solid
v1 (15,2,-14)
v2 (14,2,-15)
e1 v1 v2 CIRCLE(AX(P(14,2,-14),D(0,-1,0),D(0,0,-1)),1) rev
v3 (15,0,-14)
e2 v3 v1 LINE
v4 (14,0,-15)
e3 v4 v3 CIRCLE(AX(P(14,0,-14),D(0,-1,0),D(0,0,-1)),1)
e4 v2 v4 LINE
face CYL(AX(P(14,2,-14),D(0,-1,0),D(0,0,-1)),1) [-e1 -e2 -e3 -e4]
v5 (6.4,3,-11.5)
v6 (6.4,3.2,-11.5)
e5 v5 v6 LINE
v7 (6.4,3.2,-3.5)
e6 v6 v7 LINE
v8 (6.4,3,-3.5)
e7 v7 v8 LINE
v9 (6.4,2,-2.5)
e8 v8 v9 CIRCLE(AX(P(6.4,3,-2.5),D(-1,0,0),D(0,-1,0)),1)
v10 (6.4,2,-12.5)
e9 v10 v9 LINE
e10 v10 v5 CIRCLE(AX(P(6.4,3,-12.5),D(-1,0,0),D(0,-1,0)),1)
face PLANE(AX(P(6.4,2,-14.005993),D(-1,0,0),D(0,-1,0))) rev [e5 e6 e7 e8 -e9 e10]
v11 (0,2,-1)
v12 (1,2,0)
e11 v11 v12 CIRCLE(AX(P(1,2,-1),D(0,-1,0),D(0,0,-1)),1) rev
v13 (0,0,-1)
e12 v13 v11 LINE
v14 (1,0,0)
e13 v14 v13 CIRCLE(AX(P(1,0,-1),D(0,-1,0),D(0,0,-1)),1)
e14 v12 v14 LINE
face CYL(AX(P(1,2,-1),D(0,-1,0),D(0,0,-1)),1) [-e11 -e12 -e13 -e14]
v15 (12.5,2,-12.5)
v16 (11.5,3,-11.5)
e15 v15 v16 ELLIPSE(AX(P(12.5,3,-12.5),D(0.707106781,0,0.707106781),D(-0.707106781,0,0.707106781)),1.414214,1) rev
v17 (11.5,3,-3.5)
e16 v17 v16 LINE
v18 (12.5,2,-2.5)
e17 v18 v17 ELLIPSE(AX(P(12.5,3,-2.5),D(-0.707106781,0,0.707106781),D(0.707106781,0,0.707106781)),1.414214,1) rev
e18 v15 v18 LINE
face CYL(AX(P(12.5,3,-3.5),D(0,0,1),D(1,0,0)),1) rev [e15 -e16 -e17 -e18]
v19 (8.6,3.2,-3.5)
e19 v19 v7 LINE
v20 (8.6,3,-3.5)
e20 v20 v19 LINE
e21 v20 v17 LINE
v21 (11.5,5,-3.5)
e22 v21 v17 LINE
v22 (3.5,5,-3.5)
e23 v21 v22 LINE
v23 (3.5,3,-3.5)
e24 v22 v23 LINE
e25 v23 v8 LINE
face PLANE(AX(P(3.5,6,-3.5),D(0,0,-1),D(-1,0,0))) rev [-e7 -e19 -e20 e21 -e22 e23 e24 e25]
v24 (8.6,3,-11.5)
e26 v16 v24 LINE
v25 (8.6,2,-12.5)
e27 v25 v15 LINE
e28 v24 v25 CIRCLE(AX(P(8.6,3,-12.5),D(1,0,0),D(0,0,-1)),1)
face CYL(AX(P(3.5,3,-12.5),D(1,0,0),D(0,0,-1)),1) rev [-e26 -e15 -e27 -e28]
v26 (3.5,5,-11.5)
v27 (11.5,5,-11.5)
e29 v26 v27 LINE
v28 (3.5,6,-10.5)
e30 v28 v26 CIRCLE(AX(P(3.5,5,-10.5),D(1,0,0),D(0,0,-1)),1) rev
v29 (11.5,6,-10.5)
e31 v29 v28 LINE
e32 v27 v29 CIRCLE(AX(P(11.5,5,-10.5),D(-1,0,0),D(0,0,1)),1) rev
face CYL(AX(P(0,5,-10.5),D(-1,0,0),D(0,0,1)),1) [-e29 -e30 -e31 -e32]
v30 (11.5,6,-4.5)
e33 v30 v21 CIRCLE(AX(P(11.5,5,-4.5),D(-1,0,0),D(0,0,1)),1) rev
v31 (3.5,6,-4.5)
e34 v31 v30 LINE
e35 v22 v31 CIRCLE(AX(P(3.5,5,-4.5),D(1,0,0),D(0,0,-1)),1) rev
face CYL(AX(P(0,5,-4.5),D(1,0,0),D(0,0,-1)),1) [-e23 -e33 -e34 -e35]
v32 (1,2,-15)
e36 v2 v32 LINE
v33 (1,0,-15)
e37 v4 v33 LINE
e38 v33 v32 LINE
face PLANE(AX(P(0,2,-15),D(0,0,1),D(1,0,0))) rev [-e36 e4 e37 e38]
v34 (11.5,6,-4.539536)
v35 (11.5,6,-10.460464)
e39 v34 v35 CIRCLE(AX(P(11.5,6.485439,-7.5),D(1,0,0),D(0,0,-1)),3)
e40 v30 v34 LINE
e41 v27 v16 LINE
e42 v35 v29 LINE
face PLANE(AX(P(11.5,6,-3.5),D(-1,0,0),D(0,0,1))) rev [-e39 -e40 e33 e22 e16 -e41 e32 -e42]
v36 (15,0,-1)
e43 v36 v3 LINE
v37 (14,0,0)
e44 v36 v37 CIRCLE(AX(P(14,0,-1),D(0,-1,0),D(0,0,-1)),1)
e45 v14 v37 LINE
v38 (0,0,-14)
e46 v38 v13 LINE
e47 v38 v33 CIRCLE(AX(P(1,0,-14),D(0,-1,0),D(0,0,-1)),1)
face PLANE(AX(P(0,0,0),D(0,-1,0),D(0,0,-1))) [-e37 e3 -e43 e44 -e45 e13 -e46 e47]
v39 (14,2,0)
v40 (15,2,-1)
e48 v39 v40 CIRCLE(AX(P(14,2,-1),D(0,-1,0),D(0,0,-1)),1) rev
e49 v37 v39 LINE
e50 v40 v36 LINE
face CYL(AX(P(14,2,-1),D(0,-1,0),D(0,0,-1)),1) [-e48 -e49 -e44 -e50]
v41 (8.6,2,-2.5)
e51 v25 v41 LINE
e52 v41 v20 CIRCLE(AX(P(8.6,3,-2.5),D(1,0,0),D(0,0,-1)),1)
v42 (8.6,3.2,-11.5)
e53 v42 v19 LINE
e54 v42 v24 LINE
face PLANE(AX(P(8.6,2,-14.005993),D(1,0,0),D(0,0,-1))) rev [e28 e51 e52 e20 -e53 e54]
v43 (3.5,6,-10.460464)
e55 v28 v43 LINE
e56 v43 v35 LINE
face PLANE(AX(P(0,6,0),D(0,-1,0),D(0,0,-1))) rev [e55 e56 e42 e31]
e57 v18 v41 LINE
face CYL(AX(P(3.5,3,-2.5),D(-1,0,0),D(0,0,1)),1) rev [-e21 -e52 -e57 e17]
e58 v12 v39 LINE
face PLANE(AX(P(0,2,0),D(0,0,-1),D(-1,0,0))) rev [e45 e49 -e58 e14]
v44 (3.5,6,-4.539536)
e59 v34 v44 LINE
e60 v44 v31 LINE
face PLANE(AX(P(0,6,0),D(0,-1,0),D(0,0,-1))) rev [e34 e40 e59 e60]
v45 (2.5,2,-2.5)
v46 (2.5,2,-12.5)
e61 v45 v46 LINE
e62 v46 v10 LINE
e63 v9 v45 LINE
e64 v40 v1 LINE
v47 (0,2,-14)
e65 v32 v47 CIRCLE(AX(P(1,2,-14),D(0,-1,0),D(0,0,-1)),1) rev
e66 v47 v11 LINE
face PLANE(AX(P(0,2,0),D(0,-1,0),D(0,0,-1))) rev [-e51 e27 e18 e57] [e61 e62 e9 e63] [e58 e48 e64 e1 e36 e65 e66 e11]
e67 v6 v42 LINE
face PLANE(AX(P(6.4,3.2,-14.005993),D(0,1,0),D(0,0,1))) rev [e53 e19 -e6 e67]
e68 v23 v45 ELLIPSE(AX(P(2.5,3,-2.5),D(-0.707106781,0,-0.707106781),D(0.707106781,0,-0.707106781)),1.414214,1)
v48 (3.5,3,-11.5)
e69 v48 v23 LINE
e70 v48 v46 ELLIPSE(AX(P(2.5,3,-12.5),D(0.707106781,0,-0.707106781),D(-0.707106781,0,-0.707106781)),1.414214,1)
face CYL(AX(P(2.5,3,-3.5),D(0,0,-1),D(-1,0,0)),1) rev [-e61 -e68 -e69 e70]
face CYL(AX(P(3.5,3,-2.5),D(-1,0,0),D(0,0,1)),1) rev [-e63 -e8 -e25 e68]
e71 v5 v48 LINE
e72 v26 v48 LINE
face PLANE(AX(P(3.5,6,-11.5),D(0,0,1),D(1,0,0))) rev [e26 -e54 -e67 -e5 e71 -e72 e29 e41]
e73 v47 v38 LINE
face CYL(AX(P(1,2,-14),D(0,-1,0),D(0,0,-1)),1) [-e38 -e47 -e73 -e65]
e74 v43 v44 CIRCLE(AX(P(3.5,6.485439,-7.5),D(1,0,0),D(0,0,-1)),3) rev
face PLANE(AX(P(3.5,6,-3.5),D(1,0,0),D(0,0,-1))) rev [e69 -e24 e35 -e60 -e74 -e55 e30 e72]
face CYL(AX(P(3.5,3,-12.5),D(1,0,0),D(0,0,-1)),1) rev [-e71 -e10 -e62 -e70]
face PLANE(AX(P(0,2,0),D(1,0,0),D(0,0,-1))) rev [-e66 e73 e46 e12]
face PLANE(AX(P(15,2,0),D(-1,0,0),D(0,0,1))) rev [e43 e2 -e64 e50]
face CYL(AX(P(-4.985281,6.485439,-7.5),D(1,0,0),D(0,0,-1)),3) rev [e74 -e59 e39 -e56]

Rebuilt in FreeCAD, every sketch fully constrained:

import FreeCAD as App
import Part
import Sketcher

V = App.Vector


def edges_at(feature, points):
    """Names of the edges that pass closest to the given points."""
    edges = feature.Shape.Edges
    near = lambda p: min(range(len(edges)), key=lambda i: edges[i].distToShape(Part.Vertex(*p))[0])
    return sorted({f"Edge{near(p) + 1}" for p in points})


def add_polygon(sketch, points):
    """Adds a closed chain of lines whose ends are joined by coincident constraints."""
    first, n = sketch.GeometryCount, len(points)
    for a, b in zip(points, points[1:] + points[:1]):
        sketch.addGeometry(Part.LineSegment(App.Vector(*a, 0), App.Vector(*b, 0)), False)
    for i in range(n):
        sketch.addConstraint(Sketcher.Constraint("Coincident", first + i, 2, first + (i + 1) % n, 1))

doc = App.newDocument("Part")
params = doc.addObject("Spreadsheet::Sheet", "Params")
for row, (alias, value) in enumerate([
    ("sketch1_width", "15 mm"),
    ("pad1_length", "2 mm"),
    ("sketch2_width", "8 mm"),
    ("pad2_length", "4 mm"),
    ("sketch3_diameter", "6 mm"),
    ("pocket1_length", "8 mm"),
    ("sketch4_width", "2.2 mm"),
    ("sketch4_height", "1.2 mm"),
    ("pocket2_length", "8 mm"),
    ("fillet_radius", "1 mm"),
], start=1):
    params.set(f"A{row}", alias)
    params.set(f"B{row}", "=" + value)
    params.setAlias(f"B{row}", alias)

body = doc.addObject("PartDesign::Body", "Body")

sketch1 = body.newObject("Sketcher::SketchObject", "Sketch")
sketch1.AttachmentSupport = (doc.getObject("XZ_Plane"), [""])
sketch1.MapMode = "FlatFace"
add_polygon(sketch1, [(0, -15), (0, 0), (15, 0), (15, -15)])
sketch1.addConstraint(Sketcher.Constraint("Vertical", 0))
sketch1.addConstraint(Sketcher.Constraint("Horizontal", 1))
sketch1.addConstraint(Sketcher.Constraint("Vertical", 2))
sketch1.addConstraint(Sketcher.Constraint("Horizontal", 3))
sketch1.addConstraint(Sketcher.Constraint("Coincident", 0, 2, -1, 1))
sketch1.addConstraint(Sketcher.Constraint("Equal", 3, 0))
sketch1.addConstraint(Sketcher.Constraint("DistanceX", 1, 1, 1, 2, 15.0))
sketch1.setExpression("Constraints[10]", "Params.sketch1_width")
pad1 = body.newObject("PartDesign::Pad", "Pad")
pad1.Profile = sketch1
pad1.setExpression("Length", "Params.pad1_length")
pad1.Reversed = True

sketch2 = body.newObject("Sketcher::SketchObject", "Sketch001")
sketch2.AttachmentSupport = (doc.getObject("XZ_Plane"), [""])
sketch2.MapMode = "FlatFace"
sketch2.AttachmentOffset = App.Placement(V(0, 0, -2), App.Rotation())
add_polygon(sketch2, [(4, -12), (4, -4), (12, -4), (12, -12)])
sketch2.addConstraint(Sketcher.Constraint("Vertical", 0))
sketch2.addConstraint(Sketcher.Constraint("Horizontal", 1))
sketch2.addConstraint(Sketcher.Constraint("Vertical", 2))
sketch2.addConstraint(Sketcher.Constraint("Horizontal", 3))
sketch2.addConstraint(Sketcher.Constraint("Equal", 3, 0))
sketch2.addConstraint(Sketcher.Constraint("DistanceX", 1, 1, 1, 2, 8.0))
sketch2.addConstraint(Sketcher.Constraint("DistanceX", -1, 1, 0, 2, 3.5))
sketch2.addConstraint(Sketcher.Constraint("DistanceY", 0, 2, -1, 1, 3.5))
sketch2.setExpression("Constraints[9]", "Params.sketch2_width")
pad2 = body.newObject("PartDesign::Pad", "Pad001")
pad2.Profile = sketch2
pad2.setExpression("Length", "Params.pad2_length")
pad2.Reversed = True

sketch3 = body.newObject("Sketcher::SketchObject", "Sketch002")
sketch3.AttachmentSupport = (doc.getObject("YZ_Plane"), [""])
sketch3.MapMode = "FlatFace"
sketch3.AttachmentOffset = App.Placement(V(0, 0, 11.5), App.Rotation())
sketch3.addGeometry(Part.Circle(V(6.5, -7.5, 0), V(0, 0, 1), 3), False)
sketch3.addConstraint(Sketcher.Constraint("Diameter", 0, 6.0))
sketch3.addConstraint(Sketcher.Constraint("DistanceY", 0, 3, -1, 1, 7.5))
sketch3.addConstraint(Sketcher.Constraint("DistanceX", -1, 1, 0, 3, 6.485439))
sketch3.setExpression("Constraints[0]", "Params.sketch3_diameter")
pocket1 = body.newObject("PartDesign::Pocket", "Pocket")
pocket1.Profile = sketch3
pocket1.setExpression("Length", "Params.pocket1_length")

sketch4 = body.newObject("Sketcher::SketchObject", "Sketch003")
sketch4.AttachmentSupport = (doc.getObject("XY_Plane"), [""])
sketch4.MapMode = "FlatFace"
sketch4.AttachmentOffset = App.Placement(V(0, 0, -3.5), App.Rotation())
add_polygon(sketch4, [(6.4, 3.2), (6.4, 2), (8.6, 2), (8.6, 3.2)])
sketch4.addConstraint(Sketcher.Constraint("Vertical", 0))
sketch4.addConstraint(Sketcher.Constraint("Horizontal", 1))
sketch4.addConstraint(Sketcher.Constraint("Vertical", 2))
sketch4.addConstraint(Sketcher.Constraint("Horizontal", 3))
sketch4.addConstraint(Sketcher.Constraint("DistanceX", 1, 1, 1, 2, 2.2))
sketch4.addConstraint(Sketcher.Constraint("DistanceY", 0, 2, 0, 1, 1.2))
sketch4.addConstraint(Sketcher.Constraint("DistanceY", -1, 1, 0, 2, 2.0))
sketch4.addConstraint(Sketcher.Constraint("DistanceX", -1, 1, 0, 2, 6.4))
sketch4.setExpression("Constraints[8]", "Params.sketch4_width")
sketch4.setExpression("Constraints[9]", "Params.sketch4_height")
pocket2 = body.newObject("PartDesign::Pocket", "Pocket001")
pocket2.Profile = sketch4
pocket2.setExpression("Length", "Params.pocket2_length")
doc.recompute()

fillet = body.newObject("PartDesign::Fillet", "Fillet")
fillet.Base = (pocket2, edges_at(pocket2, [
    (11.5, 2, -7.5),
    (10.05, 2, -11.5),
    (3.5, 2, -7.5),
    (4.95, 2, -3.5),
    (7.5, 6, -11.5),
    (7.5, 6, -3.5),
    (10.05, 2, -3.5),
    (4.95, 2, -11.5),
    (0, 1, -15),
    (15, 1, -15),
    (15, 1, 0),
    (0, 1, 0),
]))
fillet.setExpression("Radius", "Params.fillet_radius")

doc.recompute()
